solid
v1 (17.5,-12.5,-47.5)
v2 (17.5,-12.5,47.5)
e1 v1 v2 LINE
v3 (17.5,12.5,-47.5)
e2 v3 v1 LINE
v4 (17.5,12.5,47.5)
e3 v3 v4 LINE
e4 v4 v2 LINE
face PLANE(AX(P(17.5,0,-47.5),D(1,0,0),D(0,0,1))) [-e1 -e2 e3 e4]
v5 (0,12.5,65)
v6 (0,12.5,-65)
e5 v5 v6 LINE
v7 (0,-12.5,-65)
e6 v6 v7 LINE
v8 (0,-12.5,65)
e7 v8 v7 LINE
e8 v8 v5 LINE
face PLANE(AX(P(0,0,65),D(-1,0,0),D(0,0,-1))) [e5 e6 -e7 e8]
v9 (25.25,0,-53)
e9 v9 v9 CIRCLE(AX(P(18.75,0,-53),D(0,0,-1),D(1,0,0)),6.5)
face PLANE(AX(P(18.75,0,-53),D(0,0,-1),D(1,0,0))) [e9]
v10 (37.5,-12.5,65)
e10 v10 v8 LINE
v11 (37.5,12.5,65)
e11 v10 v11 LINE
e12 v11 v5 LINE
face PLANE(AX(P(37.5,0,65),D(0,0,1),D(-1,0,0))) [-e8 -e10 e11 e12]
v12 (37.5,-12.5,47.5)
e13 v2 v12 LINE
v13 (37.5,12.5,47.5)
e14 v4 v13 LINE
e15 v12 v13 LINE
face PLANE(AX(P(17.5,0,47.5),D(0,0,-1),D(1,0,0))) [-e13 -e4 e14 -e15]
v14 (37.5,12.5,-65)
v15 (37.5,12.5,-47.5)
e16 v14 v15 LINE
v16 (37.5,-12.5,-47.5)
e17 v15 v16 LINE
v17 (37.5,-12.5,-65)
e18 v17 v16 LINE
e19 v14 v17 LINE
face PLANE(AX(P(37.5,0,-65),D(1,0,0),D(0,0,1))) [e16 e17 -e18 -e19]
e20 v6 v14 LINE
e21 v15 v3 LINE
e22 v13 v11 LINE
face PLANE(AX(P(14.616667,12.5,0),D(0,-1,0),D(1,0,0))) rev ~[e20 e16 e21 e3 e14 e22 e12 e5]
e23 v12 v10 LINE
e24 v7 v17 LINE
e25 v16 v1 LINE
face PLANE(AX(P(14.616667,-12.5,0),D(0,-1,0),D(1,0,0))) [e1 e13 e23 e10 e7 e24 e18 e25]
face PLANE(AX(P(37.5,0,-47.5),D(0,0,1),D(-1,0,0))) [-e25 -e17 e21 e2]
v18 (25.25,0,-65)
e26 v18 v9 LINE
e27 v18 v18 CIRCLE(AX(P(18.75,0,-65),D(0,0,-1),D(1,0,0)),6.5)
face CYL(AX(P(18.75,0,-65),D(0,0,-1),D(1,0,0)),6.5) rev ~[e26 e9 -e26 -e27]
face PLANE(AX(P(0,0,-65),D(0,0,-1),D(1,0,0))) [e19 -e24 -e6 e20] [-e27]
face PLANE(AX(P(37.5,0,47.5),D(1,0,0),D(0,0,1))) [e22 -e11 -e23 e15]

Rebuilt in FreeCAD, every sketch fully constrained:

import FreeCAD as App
import Part
import Sketcher
from FreeCAD import Vector
Q = App.Units.Quantity

doc = App.newDocument("Part")
params = doc.addObject("Spreadsheet::Sheet", "Params")
for row, (alias, value) in enumerate([
    ("sketch1_width", "20 mm"),
    ("sketch1_height", "130 mm"),
    ("sketch1_height2", "95 mm"),
    ("sketch1_width2", "37.5 mm"),
    ("pad1_length", "12.5 mm"),
    ("pad1_length2", "12.5 mm"),
    ("sketch2_diameter", "13 mm"),
    ("pocket1_length", "12 mm"),
], start=1):
    params.set(f"A{row}", alias)
    params.set(f"B{row}", "=" + value)
    params.setAlias(f"B{row}", alias)

body = doc.addObject("PartDesign::Body", "Body")

sketch1 = body.newObject("Sketcher::SketchObject", "Sketch")
sketch1.AttachmentSupport = (doc.getObject("XZ_Plane"), [""])
sketch1.MapMode = "FlatFace"
sketch1.addGeometry([
    Part.LineSegment(Vector(0, 65, 0), Vector(0, -65, 0)),
    Part.LineSegment(Vector(0, -65, 0), Vector(38, -65, 0)),
    Part.LineSegment(Vector(38, -65, 0), Vector(38, -48, 0)),
    Part.LineSegment(Vector(38, -48, 0), Vector(18, -48, 0)),
    Part.LineSegment(Vector(18, -48, 0), Vector(18, 48, 0)),
    Part.LineSegment(Vector(18, 48, 0), Vector(38, 48, 0)),
    Part.LineSegment(Vector(38, 48, 0), Vector(38, 65, 0)),
    Part.LineSegment(Vector(38, 65, 0), Vector(0, 65, 0)),
], False)
sketch1.addConstraint([
    Sketcher.Constraint("Coincident", 0, 2, 1, 1),
    Sketcher.Constraint("Coincident", 1, 2, 2, 1),
    Sketcher.Constraint("Coincident", 2, 2, 3, 1),
    Sketcher.Constraint("Coincident", 3, 2, 4, 1),
    Sketcher.Constraint("Coincident", 4, 2, 5, 1),
    Sketcher.Constraint("Coincident", 5, 2, 6, 1),
    Sketcher.Constraint("Coincident", 6, 2, 7, 1),
    Sketcher.Constraint("Coincident", 7, 2, 0, 1),
    Sketcher.Constraint("Vertical", 0),
    Sketcher.Constraint("Horizontal", 1),
    Sketcher.Constraint("Vertical", 2),
    Sketcher.Constraint("Horizontal", 3),
    Sketcher.Constraint("Vertical", 4),
    Sketcher.Constraint("Horizontal", 5),
    Sketcher.Constraint("Vertical", 6),
    Sketcher.Constraint("Horizontal", 7),
    Sketcher.Constraint("Symmetric", 0, 2, 7, 2, -1, 1),
    Sketcher.Constraint("Symmetric", 2, 2, 5, 2, -1),
    Sketcher.Constraint("DistanceX", 3, 2, 3, 1, Q("20 mm")),
    Sketcher.Constraint("DistanceY", 0, 2, 0, 1, Q("130 mm")),
    Sketcher.Constraint("DistanceY", 4, 1, 4, 2, Q("95 mm")),
    Sketcher.Constraint("DistanceX", 1, 1, 1, 2, Q("37.5 mm")),
])
sketch1.setExpression("Constraints[18]", "Params.sketch1_width")
sketch1.setExpression("Constraints[19]", "Params.sketch1_height")
sketch1.setExpression("Constraints[20]", "Params.sketch1_height2")
sketch1.setExpression("Constraints[21]", "Params.sketch1_width2")
pad1 = body.newObject("PartDesign::Pad", "Pad")
pad1.Profile = sketch1
pad1.Type = "TwoLengths"
pad1.setExpression("Length", "Params.pad1_length")
pad1.setExpression("Length2", "Params.pad1_length2")

sketch2 = body.newObject("Sketcher::SketchObject", "Sketch001")
sketch2.AttachmentSupport = (doc.getObject("XY_Plane"), [""])
sketch2.MapMode = "FlatFace"
sketch2.AttachmentOffset = App.Placement(Vector(0, 0, -65), App.Rotation())
sketch2.addGeometry(Part.Circle(Vector(19, 0, 0), Vector(0, 0, 1), 6), False)
sketch2.addConstraint([
    Sketcher.Constraint("PointOnObject", 0, 3, -1),
    Sketcher.Constraint("Diameter", 0, Q("13 mm")),
    Sketcher.Constraint("DistanceX", -1, 1, 0, 3, Q("18.75 mm")),
])
sketch2.setExpression("Constraints[1]", "Params.sketch2_diameter")
pocket1 = body.newObject("PartDesign::Pocket", "Pocket")
pocket1.Profile = sketch2
pocket1.setExpression("Length", "Params.pocket1_length")
pocket1.Reversed = True

doc.recompute()
